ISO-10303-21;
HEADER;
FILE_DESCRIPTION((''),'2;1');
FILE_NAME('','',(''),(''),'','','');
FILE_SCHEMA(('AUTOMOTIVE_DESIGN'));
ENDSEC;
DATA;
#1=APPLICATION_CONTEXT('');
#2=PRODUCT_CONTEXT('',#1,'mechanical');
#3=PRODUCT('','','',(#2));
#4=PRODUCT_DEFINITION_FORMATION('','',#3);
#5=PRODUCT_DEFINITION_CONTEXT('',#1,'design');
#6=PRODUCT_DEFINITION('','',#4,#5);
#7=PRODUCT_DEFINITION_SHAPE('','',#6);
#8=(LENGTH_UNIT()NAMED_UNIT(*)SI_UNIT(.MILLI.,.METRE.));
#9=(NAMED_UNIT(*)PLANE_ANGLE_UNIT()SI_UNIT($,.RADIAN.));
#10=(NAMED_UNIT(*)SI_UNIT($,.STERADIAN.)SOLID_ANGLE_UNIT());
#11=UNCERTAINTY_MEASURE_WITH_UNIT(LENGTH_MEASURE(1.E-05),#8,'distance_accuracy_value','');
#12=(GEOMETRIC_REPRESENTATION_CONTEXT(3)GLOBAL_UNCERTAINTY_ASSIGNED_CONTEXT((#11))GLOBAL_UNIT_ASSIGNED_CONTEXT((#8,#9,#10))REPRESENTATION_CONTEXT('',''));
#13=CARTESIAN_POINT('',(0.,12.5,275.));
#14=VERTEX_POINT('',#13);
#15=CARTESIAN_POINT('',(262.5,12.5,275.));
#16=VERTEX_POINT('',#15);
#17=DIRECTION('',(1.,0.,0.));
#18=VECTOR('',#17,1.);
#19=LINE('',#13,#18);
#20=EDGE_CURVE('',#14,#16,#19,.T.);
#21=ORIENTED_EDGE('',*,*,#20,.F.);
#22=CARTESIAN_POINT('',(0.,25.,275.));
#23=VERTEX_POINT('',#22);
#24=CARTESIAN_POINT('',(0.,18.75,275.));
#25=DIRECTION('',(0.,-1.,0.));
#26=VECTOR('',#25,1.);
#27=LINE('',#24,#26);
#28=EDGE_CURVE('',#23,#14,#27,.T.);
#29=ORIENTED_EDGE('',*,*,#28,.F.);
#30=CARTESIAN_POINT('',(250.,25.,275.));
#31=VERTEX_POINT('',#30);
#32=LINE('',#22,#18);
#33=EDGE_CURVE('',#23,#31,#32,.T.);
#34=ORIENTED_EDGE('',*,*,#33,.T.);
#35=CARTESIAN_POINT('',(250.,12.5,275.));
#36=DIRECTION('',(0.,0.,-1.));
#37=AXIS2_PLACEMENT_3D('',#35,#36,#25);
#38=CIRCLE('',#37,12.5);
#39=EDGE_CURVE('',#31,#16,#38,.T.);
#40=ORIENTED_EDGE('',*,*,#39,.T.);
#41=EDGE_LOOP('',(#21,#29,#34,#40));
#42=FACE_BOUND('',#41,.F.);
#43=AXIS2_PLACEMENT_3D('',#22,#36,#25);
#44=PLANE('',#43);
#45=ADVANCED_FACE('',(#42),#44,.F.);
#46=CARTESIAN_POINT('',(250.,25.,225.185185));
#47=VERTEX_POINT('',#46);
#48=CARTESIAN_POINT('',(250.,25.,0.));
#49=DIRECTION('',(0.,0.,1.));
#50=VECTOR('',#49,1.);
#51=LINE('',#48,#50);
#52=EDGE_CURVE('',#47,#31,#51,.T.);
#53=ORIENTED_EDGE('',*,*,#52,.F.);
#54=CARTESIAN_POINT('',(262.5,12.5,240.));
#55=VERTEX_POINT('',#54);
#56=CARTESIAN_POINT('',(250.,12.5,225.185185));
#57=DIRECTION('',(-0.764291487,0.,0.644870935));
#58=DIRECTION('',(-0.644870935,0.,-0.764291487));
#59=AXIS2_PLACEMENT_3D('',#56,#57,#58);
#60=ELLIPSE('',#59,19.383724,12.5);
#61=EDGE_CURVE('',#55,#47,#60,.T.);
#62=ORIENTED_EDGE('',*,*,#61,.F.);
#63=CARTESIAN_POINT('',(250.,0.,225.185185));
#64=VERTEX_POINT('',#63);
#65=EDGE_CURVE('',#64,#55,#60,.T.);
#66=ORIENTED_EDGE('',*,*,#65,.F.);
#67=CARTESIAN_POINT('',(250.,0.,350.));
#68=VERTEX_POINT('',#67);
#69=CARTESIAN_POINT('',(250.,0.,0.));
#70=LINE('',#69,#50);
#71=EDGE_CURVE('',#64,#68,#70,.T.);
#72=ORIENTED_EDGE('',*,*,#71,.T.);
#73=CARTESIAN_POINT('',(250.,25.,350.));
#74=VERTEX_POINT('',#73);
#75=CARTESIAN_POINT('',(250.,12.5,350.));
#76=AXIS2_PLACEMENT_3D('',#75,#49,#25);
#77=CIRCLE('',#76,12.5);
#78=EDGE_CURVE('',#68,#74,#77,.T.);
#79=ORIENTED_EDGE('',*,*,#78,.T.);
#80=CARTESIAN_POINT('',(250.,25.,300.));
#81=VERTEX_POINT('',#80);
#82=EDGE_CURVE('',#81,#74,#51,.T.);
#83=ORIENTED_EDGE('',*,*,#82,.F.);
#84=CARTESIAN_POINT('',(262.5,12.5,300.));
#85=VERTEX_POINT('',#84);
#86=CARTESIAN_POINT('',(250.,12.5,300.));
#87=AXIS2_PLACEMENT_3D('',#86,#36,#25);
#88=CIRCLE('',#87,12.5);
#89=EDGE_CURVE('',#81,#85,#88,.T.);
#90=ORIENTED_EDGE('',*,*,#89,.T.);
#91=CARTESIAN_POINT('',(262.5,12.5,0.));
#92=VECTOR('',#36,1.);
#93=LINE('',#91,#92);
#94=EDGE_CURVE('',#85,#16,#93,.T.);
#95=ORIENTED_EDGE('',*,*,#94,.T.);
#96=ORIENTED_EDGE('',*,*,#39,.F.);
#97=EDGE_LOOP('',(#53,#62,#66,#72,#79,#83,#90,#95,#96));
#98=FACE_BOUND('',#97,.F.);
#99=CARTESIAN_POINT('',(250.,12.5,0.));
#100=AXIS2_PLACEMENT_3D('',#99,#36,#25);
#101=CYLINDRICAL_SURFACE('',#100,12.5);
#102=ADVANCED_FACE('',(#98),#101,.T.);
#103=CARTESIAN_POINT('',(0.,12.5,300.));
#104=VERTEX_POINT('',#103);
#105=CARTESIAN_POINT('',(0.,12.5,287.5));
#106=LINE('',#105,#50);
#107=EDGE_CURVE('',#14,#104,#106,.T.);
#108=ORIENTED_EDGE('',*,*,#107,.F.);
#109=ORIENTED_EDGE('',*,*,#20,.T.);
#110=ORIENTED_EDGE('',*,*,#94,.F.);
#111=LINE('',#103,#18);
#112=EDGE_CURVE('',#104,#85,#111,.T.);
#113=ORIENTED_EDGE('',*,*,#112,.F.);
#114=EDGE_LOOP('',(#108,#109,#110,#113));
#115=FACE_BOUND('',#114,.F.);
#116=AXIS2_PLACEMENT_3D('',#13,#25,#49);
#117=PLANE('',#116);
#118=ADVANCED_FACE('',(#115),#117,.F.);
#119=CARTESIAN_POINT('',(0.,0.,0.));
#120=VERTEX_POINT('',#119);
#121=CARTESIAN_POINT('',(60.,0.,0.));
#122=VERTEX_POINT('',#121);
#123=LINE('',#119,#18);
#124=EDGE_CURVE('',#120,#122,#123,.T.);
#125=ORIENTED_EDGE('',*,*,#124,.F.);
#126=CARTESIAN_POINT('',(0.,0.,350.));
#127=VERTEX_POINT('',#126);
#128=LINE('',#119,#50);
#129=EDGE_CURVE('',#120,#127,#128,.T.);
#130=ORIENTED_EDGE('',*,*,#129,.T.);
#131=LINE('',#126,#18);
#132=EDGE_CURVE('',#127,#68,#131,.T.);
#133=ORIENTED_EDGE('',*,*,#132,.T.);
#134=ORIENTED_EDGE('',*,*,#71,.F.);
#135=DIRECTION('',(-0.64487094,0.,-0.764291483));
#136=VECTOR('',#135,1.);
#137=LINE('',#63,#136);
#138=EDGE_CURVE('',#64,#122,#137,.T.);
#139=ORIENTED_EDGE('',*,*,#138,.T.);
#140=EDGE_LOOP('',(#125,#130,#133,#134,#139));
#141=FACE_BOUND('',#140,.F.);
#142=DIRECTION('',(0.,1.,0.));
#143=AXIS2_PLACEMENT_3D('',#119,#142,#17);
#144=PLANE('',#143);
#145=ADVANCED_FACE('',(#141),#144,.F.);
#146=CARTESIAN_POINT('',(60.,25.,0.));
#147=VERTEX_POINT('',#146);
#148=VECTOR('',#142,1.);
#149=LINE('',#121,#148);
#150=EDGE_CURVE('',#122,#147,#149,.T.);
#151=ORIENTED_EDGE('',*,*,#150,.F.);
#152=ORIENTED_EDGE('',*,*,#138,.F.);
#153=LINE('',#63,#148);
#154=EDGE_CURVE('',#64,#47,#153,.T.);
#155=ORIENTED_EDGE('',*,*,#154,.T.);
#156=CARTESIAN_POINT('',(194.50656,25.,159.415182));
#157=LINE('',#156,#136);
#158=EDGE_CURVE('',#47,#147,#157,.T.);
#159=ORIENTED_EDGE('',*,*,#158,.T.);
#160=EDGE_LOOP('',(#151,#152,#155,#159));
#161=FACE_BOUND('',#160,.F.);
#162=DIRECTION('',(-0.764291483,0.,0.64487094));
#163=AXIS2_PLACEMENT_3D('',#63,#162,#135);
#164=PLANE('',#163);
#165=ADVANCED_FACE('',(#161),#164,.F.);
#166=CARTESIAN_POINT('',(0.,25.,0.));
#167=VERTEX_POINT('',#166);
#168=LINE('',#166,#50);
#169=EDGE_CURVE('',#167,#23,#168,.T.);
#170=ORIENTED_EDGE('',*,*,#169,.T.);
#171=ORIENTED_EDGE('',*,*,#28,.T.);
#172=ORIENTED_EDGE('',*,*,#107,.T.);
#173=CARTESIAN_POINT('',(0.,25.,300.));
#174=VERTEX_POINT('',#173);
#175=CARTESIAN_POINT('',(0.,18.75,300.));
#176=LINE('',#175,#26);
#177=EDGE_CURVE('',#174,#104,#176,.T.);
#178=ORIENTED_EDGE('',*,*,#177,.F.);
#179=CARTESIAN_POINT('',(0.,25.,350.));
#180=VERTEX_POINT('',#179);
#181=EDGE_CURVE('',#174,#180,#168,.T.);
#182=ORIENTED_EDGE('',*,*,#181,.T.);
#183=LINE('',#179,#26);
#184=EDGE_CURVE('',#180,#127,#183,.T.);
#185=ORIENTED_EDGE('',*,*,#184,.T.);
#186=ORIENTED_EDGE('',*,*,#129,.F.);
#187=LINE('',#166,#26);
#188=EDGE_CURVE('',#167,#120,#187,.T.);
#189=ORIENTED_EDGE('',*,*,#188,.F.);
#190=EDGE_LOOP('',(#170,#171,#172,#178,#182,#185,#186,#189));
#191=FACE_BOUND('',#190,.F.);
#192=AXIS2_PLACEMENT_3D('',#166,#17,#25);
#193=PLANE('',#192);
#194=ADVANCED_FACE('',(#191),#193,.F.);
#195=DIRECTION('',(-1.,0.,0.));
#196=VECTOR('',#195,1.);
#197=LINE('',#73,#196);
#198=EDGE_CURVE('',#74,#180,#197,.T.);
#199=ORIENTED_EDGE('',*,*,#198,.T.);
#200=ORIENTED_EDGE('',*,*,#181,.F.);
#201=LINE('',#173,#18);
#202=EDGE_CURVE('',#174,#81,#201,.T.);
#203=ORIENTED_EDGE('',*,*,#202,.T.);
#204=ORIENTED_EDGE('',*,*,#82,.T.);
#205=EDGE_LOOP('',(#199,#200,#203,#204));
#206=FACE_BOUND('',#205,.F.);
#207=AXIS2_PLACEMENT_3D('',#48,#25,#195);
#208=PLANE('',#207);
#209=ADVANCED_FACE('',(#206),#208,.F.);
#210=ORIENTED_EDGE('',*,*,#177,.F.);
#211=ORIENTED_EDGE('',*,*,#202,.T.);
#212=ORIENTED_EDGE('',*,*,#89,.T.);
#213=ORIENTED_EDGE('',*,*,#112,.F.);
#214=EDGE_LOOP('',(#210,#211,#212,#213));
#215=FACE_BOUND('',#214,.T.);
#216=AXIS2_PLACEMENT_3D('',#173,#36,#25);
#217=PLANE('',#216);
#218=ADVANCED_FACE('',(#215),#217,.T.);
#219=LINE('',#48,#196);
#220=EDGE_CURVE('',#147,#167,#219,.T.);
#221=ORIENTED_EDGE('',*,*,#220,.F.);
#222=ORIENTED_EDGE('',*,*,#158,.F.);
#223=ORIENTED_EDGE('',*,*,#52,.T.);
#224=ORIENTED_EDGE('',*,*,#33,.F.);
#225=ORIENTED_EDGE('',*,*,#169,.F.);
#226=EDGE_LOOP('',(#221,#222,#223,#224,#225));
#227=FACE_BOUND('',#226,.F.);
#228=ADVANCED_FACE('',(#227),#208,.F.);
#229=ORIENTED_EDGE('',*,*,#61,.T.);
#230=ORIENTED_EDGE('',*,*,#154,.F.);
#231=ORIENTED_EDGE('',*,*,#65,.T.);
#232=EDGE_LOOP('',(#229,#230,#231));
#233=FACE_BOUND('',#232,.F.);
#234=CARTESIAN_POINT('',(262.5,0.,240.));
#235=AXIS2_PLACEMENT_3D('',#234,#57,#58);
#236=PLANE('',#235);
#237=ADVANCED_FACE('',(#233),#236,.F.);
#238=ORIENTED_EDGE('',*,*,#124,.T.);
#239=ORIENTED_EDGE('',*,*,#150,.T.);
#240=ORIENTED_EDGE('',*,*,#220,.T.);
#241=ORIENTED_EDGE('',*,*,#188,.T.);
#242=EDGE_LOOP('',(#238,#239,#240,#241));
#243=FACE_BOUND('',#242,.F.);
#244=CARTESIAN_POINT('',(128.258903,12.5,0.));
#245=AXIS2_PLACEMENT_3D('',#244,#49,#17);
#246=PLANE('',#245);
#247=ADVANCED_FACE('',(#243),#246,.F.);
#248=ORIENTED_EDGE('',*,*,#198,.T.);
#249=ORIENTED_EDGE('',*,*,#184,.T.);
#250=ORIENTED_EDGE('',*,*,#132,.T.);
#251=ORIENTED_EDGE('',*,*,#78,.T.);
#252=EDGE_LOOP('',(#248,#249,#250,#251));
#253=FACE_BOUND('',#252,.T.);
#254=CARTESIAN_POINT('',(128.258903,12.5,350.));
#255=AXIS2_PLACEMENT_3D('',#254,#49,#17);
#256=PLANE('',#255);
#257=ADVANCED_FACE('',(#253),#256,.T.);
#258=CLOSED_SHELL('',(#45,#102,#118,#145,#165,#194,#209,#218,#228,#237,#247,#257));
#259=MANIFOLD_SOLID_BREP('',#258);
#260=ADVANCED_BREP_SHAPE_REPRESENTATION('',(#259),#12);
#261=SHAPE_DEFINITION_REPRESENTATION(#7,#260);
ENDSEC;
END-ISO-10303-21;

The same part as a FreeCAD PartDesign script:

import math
import FreeCAD as App
import Part
import Sketcher

V = App.Vector

doc = App.newDocument("Part")
body = doc.addObject("PartDesign::Body", "Body")

sketch1 = doc.addObject("Sketcher::SketchObject", "Sketch")
body.addObject(sketch1)
sketch1.AttachmentSupport = (doc.XY_Plane, [""])
sketch1.MapMode = "FlatFace"
sketch1.addGeometry([
    Part.LineSegment(V(0, 25, 0), V(0, 0, 0)),
    Part.LineSegment(V(0, 0, 0), V(250, 0, 0)),
    Part.ArcOfCircle(Part.Circle(V(250, 12.5, 0), V(0, 0, 1), 12.5), math.radians(-90), math.radians(90)),
    Part.LineSegment(V(250, 25, 0), V(0, 25, 0)),
], False)
sketch1.addConstraint([
    Sketcher.Constraint("Coincident", 0, 2, 1, 1),
    Sketcher.Constraint("Tangent", 1, 2, 2, 1),
    Sketcher.Constraint("Tangent", 2, 2, 3, 1),
    Sketcher.Constraint("Coincident", 3, 2, 0, 1),
    Sketcher.Constraint("Vertical", 0),
    Sketcher.Constraint("Horizontal", 1),
    Sketcher.Constraint("Horizontal", 3),
    Sketcher.Constraint("Coincident", 0, 2, -1, 1),
    Sketcher.Constraint("Radius", 2, 12.5),
    Sketcher.Constraint("DistanceX", 1, 1, 1, 2, 250.0),
])
pad1 = doc.addObject("PartDesign::Pad", "Pad")
body.addObject(pad1)
pad1.Profile = sketch1
pad1.Length = 350

sketch2 = doc.addObject("Sketcher::SketchObject", "Sketch001")
body.addObject(sketch2)
sketch2.AttachmentSupport = (doc.YZ_Plane, [""])
sketch2.MapMode = "FlatFace"
sketch2.addGeometry([
    Part.LineSegment(V(25, 300, 0), V(25, 275, 0)),
    Part.LineSegment(V(25, 275, 0), V(12.5, 275, 0)),
    Part.LineSegment(V(12.5, 275, 0), V(12.5, 300, 0)),
    Part.LineSegment(V(12.5, 300, 0), V(25, 300, 0)),
], False)
sketch2.addConstraint([
    Sketcher.Constraint("Coincident", 0, 2, 1, 1),
    Sketcher.Constraint("Coincident", 1, 2, 2, 1),
    Sketcher.Constraint("Coincident", 2, 2, 3, 1),
    Sketcher.Constraint("Coincident", 3, 2, 0, 1),
    Sketcher.Constraint("Vertical", 0),
    Sketcher.Constraint("Horizontal", 1),
    Sketcher.Constraint("Vertical", 2),
    Sketcher.Constraint("Horizontal", 3),
    Sketcher.Constraint("DistanceY", 0, 2, 0, 1, 25.0),
    Sketcher.Constraint("DistanceX", 1, 2, 1, 1, 12.5),
    Sketcher.Constraint("DistanceX", -1, 1, 0, 2, 25.0),
    Sketcher.Constraint("DistanceY", -1, 1, 0, 2, 275.0),
])
pocket1 = doc.addObject("PartDesign::Pocket", "Pocket")
body.addObject(pocket1)
pocket1.Profile = sketch2
pocket1.Type = "ThroughAll"
pocket1.Reversed = True

sketch3 = doc.addObject("Sketcher::SketchObject", "Sketch002")
body.addObject(sketch3)
sketch3.AttachmentSupport = (doc.XZ_Plane, [""])
sketch3.MapMode = "FlatFace"
sketch3.addGeometry([
    Part.LineSegment(V(250, 225.185185, 0), V(60, 0, 0)),
    Part.LineSegment(V(60, 0, 0), V(262.5, 0, 0)),
    Part.LineSegment(V(262.5, 0, 0), V(262.5, 240, 0)),
    Part.LineSegment(V(262.5, 240, 0), V(250, 225.185185, 0)),
], False)
sketch3.addConstraint([
    Sketcher.Constraint("Coincident", 0, 2, 1, 1),
    Sketcher.Constraint("Coincident", 1, 2, 2, 1),
    Sketcher.Constraint("Coincident", 2, 2, 3, 1),
    Sketcher.Constraint("Coincident", 3, 2, 0, 1),
    Sketcher.Constraint("Horizontal", 1),
    Sketcher.Constraint("Vertical", 2),
    Sketcher.Constraint("PointOnObject", 0, 2, -1),
    Sketcher.Constraint("Parallel", 0, 3),
    Sketcher.Constraint("DistanceY", 2, 1, 2, 2, 240.0),
    Sketcher.Constraint("DistanceX", 1, 1, 1, 2, 202.5),
    Sketcher.Constraint("DistanceX", -1, 1, 0, 2, 60.0),
    Sketcher.Constraint("DistanceX", -1, 1, 3, 2, 250.0),
])
pocket2 = doc.addObject("PartDesign::Pocket", "Pocket001")
body.addObject(pocket2)
pocket2.Profile = sketch3
pocket2.Type = "ThroughAll"

doc.recompute()
